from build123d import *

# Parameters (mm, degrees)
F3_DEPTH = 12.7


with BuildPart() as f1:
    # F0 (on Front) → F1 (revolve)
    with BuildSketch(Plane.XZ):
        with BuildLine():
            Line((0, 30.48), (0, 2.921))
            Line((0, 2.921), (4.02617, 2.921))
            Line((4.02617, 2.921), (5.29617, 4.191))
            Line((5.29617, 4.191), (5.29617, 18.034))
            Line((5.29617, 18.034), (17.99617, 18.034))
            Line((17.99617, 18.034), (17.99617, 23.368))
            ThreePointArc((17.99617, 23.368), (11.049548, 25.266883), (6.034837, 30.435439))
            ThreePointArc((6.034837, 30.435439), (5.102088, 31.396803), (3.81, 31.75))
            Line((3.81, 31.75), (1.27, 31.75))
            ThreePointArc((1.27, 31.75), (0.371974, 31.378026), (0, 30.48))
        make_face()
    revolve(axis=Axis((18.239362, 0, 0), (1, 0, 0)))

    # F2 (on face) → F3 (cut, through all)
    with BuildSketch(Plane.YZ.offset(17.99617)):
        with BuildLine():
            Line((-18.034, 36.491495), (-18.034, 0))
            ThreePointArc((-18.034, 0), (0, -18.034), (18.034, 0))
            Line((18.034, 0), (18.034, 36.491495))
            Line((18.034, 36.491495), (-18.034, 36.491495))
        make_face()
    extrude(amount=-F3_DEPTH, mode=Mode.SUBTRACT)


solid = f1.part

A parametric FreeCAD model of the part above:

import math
import FreeCAD as App
import Part
import Sketcher
Q = App.Units.Quantity

doc = App.newDocument("Part")
body = doc.addObject("PartDesign::Body", "Body")

sketch1 = doc.addObject("Sketcher::SketchObject", "Sketch")
body.addObject(sketch1)
sketch1.AttachmentSupport = (doc.XZ_Plane, [""])
sketch1.MapMode = "FlatFace"
sketch1.addGeometry(Part.LineSegment(App.Vector(0, 30.5, 0), App.Vector(0, 2.9, 0)), False)
sketch1.addGeometry(Part.LineSegment(App.Vector(0, 2.9, 0), App.Vector(4, 2.9, 0)), False)
sketch1.addGeometry(Part.LineSegment(App.Vector(4, 2.9, 0), App.Vector(5.3, 4.2, 0)), False)
sketch1.addGeometry(Part.LineSegment(App.Vector(5.3, 4.2, 0), App.Vector(5.3, 18, 0)), False)
sketch1.addGeometry(Part.LineSegment(App.Vector(5.3, 18, 0), App.Vector(18, 18, 0)), False)
sketch1.addGeometry(Part.LineSegment(App.Vector(18, 18, 0), App.Vector(18, 23.4, 0)), False)
sketch1.addGeometry(Part.ArcOfCircle(Part.Circle(App.Vector(18, 37, 0), App.Vector(0, 0, 1), 13.7), math.radians(-151), math.radians(-90)), False)
sketch1.addGeometry(Part.ArcOfCircle(Part.Circle(App.Vector(3.8, 29.2, 0), App.Vector(0, 0, 1), 2.5), math.radians(29), math.radians(90)), False)
sketch1.addGeometry(Part.LineSegment(App.Vector(3.8, 31.8, 0), App.Vector(1.3, 31.8, 0)), False)
sketch1.addGeometry(Part.ArcOfCircle(Part.Circle(App.Vector(1.3, 30.5, 0), App.Vector(0, 0, 1), 1.3), math.radians(90), math.radians(180)), False)
sketch1.addConstraint(Sketcher.Constraint("Coincident", 0, 2, 1, 1))
sketch1.addConstraint(Sketcher.Constraint("Coincident", 1, 2, 2, 1))
sketch1.addConstraint(Sketcher.Constraint("Coincident", 2, 2, 3, 1))
sketch1.addConstraint(Sketcher.Constraint("Coincident", 3, 2, 4, 1))
sketch1.addConstraint(Sketcher.Constraint("Coincident", 4, 2, 5, 1))
sketch1.addConstraint(Sketcher.Constraint("Coincident", 5, 2, 6, 2))
sketch1.addConstraint(Sketcher.Constraint("Tangent", 6, 1, 7, 1))
sketch1.addConstraint(Sketcher.Constraint("Tangent", 7, 2, 8, 1))
sketch1.addConstraint(Sketcher.Constraint("Tangent", 8, 2, 9, 1))
sketch1.addConstraint(Sketcher.Constraint("Tangent", 9, 2, 0, 1))
sketch1.addConstraint(Sketcher.Constraint("Vertical", 0))
sketch1.addConstraint(Sketcher.Constraint("Horizontal", 1))
sketch1.addConstraint(Sketcher.Constraint("Vertical", 3))
sketch1.addConstraint(Sketcher.Constraint("Horizontal", 4))
sketch1.addConstraint(Sketcher.Constraint("Vertical", 5))
sketch1.addConstraint(Sketcher.Constraint("Horizontal", 8))
sketch1.addConstraint(Sketcher.Constraint("PointOnObject", 0, 2, -2))
sketch1.addConstraint(Sketcher.Constraint("Radius", 7, Q("0.1000001 in")))
sketch1.addConstraint(Sketcher.Constraint("Radius", 9, Q("0.0499999 in")))
sketch1.addConstraint(Sketcher.Constraint("DistanceX", 4, 1, 4, 2, Q("0.5 in")))
sketch1.addConstraint(Sketcher.Constraint("DistanceX", 8, 2, 8, 1, Q("0.1 in")))
sketch1.addConstraint(Sketcher.Constraint("Angle", 2, Q("45 deg")))
sketch1.addConstraint(Sketcher.Constraint("DistanceY", 5, 1, 5, 2, Q("0.21 in")))
sketch1.addConstraint(Sketcher.Constraint("DistanceY", -1, 1, 9, 3, Q("1.2000001 in")))
sketch1.addConstraint(Sketcher.Constraint("DistanceX", 2, 2, 6, 3, Q("0.4999999 in")))
sketch1.addConstraint(Sketcher.Constraint("DistanceY", 0, 2, 0, 1, Q("1.085 in")))
sketch1.addConstraint(Sketcher.Constraint("DistanceY", 3, 1, 3, 2, Q("0.545 in")))
sketch1.addConstraint(Sketcher.Constraint("DistanceY", -1, 1, 3, 2, Q("0.71 in")))
sketch1.addConstraint(Sketcher.Constraint("Radius", 6, Q("13.655733 mm")))
revolution = doc.addObject("PartDesign::Revolution", "Revolution")
body.addObject(revolution)
revolution.Profile = sketch1
revolution.ReferenceAxis = (sketch1, ["H_Axis"])
revolution.Angle = 360

sketch2 = doc.addObject("Sketcher::SketchObject", "Sketch001")
body.addObject(sketch2)
sketch2.AttachmentSupport = (doc.YZ_Plane, [""])
sketch2.MapMode = "FlatFace"
sketch2.AttachmentOffset = App.Placement(App.Vector(0, 0, 17.99617), App.Rotation())
sketch2.addGeometry(Part.LineSegment(App.Vector(-18, 36, 0), App.Vector(-18, 0, 0)), False)
sketch2.addGeometry(Part.ArcOfCircle(Part.Circle(App.Vector(0, 0, 0), App.Vector(0, 0, 1), 18), math.radians(180), math.radians(360)), False)
sketch2.addGeometry(Part.LineSegment(App.Vector(18, 0, 0), App.Vector(18, 36, 0)), False)
sketch2.addGeometry(Part.LineSegment(App.Vector(18, 36, 0), App.Vector(-18, 36, 0)), False)
sketch2.addConstraint(Sketcher.Constraint("Tangent", 0, 2, 1, 1))
sketch2.addConstraint(Sketcher.Constraint("Tangent", 1, 2, 2, 1))
sketch2.addConstraint(Sketcher.Constraint("Coincident", 2, 2, 3, 1))
sketch2.addConstraint(Sketcher.Constraint("Coincident", 3, 2, 0, 1))
sketch2.addConstraint(Sketcher.Constraint("Vertical", 0))
sketch2.addConstraint(Sketcher.Constraint("Vertical", 2))
sketch2.addConstraint(Sketcher.Constraint("Horizontal", 3))
sketch2.addConstraint(Sketcher.Constraint("Coincident", 1, 3, -1, 1))
sketch2.addConstraint(Sketcher.Constraint("Radius", 1, Q("0.71 in")))
sketch2.addConstraint(Sketcher.Constraint("DistanceY", 0, 2, 0, 1, Q("36.491495 mm")))
pocket1 = doc.addObject("PartDesign::Pocket", "Pocket")
body.addObject(pocket1)
pocket1.Profile = sketch2
pocket1.Length = Q("0.5 in")

doc.recompute()
